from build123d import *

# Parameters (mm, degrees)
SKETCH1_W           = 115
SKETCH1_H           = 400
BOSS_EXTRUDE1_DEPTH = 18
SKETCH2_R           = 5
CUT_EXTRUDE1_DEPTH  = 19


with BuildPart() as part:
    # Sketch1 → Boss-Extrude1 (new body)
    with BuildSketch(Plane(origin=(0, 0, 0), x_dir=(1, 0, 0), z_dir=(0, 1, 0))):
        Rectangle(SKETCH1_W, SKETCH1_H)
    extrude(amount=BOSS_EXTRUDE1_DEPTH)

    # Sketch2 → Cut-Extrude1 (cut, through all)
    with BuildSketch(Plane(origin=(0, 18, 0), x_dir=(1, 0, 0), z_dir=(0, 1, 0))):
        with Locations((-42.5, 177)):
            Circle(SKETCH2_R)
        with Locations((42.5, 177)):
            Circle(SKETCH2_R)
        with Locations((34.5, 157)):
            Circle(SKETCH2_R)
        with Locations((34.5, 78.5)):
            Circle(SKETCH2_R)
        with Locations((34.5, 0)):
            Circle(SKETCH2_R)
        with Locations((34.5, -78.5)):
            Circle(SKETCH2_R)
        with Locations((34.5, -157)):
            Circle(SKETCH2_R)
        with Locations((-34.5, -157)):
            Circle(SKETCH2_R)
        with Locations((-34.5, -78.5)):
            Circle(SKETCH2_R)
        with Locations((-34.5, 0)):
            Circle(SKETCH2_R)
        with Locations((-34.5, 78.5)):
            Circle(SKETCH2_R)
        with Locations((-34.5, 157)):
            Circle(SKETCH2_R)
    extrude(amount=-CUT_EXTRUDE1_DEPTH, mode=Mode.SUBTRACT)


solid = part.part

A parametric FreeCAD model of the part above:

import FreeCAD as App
import Part
import Sketcher

V = App.Vector


def add_polygon(sketch, points):
    """Adds a closed chain of lines whose ends are joined by coincident constraints."""
    first, n = sketch.GeometryCount, len(points)
    for a, b in zip(points, points[1:] + points[:1]):
        sketch.addGeometry(Part.LineSegment(App.Vector(*a, 0), App.Vector(*b, 0)), False)
    for i in range(n):
        sketch.addConstraint(Sketcher.Constraint("Coincident", first + i, 2, first + (i + 1) % n, 1))

doc = App.newDocument("Part")
body = doc.addObject("PartDesign::Body", "Body")

sketch1 = body.newObject("Sketcher::SketchObject", "Sketch")
sketch1.AttachmentSupport = (doc.getObject("XZ_Plane"), [""])
sketch1.MapMode = "FlatFace"
add_polygon(sketch1, [(-58, -200), (-58, 200), (58, 200), (58, -200)])
sketch1.addConstraint([
    Sketcher.Constraint("Vertical", 0),
    Sketcher.Constraint("Horizontal", 1),
    Sketcher.Constraint("Vertical", 2),
    Sketcher.Constraint("Horizontal", 3),
    Sketcher.Constraint("Symmetric", 0, 2, 2, 2, -1, 1),
    Sketcher.Constraint("DistanceX", 1, 1, 1, 2, 115.0),
    Sketcher.Constraint("DistanceY", 0, 1, 0, 2, 400.0),
])
pad1 = body.newObject("PartDesign::Pad", "Pad")
pad1.Profile = sketch1
pad1.Length = 18
pad1.Reversed = True

sketch2 = body.newObject("Sketcher::SketchObject", "Sketch001")
sketch2.AttachmentSupport = (doc.getObject("XZ_Plane"), [""])
sketch2.MapMode = "FlatFace"
sketch2.AttachmentOffset = App.Placement(V(0, 0, -18), App.Rotation())
sketch2.addGeometry([
    Part.Circle(V(-42, -177, 0), V(0, 0, 1), 5),
    Part.Circle(V(42, -177, 0), V(0, 0, 1), 5),
    Part.Circle(V(34, -157, 0), V(0, 0, 1), 5),
    Part.Circle(V(34, -78, 0), V(0, 0, 1), 5),
    Part.Circle(V(34, 0, 0), V(0, 0, 1), 5),
    Part.Circle(V(34, 78, 0), V(0, 0, 1), 5),
    Part.Circle(V(34, 157, 0), V(0, 0, 1), 5),
    Part.Circle(V(-34, 157, 0), V(0, 0, 1), 5),
    Part.Circle(V(-34, 78, 0), V(0, 0, 1), 5),
    Part.Circle(V(-34, 0, 0), V(0, 0, 1), 5),
    Part.Circle(V(-34, -78, 0), V(0, 0, 1), 5),
    Part.Circle(V(-34, -157, 0), V(0, 0, 1), 5),
], False)
sketch2.addConstraint([
    Sketcher.Constraint("Equal", 0, 1),
    Sketcher.Constraint("Equal", 1, 2),
    Sketcher.Constraint("Equal", 2, 3),
    Sketcher.Constraint("Equal", 3, 4),
    Sketcher.Constraint("Equal", 4, 5),
    Sketcher.Constraint("Equal", 5, 6),
    Sketcher.Constraint("Equal", 6, 7),
    Sketcher.Constraint("Equal", 7, 8),
    Sketcher.Constraint("Equal", 8, 9),
    Sketcher.Constraint("Equal", 9, 10),
    Sketcher.Constraint("Equal", 10, 11),
    Sketcher.Constraint("Symmetric", 2, 3, 7, 3, -1, 1),
    Sketcher.Constraint("Symmetric", 3, 3, 8, 3, -1, 1),
    Sketcher.Constraint("Symmetric", 4, 3, 9, 3, -1, 1),
    Sketcher.Constraint("Symmetric", 5, 3, 10, 3, -1, 1),
    Sketcher.Constraint("Symmetric", 6, 3, 11, 3, -1, 1),
    Sketcher.Constraint("Symmetric", 0, 3, 1, 3, -2),
    Sketcher.Constraint("Symmetric", 6, 3, 7, 3, -2),
    Sketcher.Constraint("Symmetric", 5, 3, 8, 3, -2),
    Sketcher.Constraint("PointOnObject", 4, 3, -1),
    Sketcher.Constraint("Vertical", 2, 3, 3, 3),
    Sketcher.Constraint("Vertical", 3, 3, 4, 3),
    Sketcher.Constraint("Diameter", 0, 10.0),
    Sketcher.Constraint("DistanceY", 0, 3, -1, 1, 177.0),
    Sketcher.Constraint("DistanceY", 2, 3, -1, 1, 157.0),
    Sketcher.Constraint("DistanceX", 0, 3, 1, 3, 85.0),
    Sketcher.Constraint("DistanceX", 2, 3, 1, 3, 8.0),
    Sketcher.Constraint("DistanceY", 3, 3, 5, 3, 157.0),
])
pocket1 = body.newObject("PartDesign::Pocket", "Pocket")
pocket1.Profile = sketch2
pocket1.Type = "ThroughAll"
pocket1.Reversed = True

doc.recompute()
